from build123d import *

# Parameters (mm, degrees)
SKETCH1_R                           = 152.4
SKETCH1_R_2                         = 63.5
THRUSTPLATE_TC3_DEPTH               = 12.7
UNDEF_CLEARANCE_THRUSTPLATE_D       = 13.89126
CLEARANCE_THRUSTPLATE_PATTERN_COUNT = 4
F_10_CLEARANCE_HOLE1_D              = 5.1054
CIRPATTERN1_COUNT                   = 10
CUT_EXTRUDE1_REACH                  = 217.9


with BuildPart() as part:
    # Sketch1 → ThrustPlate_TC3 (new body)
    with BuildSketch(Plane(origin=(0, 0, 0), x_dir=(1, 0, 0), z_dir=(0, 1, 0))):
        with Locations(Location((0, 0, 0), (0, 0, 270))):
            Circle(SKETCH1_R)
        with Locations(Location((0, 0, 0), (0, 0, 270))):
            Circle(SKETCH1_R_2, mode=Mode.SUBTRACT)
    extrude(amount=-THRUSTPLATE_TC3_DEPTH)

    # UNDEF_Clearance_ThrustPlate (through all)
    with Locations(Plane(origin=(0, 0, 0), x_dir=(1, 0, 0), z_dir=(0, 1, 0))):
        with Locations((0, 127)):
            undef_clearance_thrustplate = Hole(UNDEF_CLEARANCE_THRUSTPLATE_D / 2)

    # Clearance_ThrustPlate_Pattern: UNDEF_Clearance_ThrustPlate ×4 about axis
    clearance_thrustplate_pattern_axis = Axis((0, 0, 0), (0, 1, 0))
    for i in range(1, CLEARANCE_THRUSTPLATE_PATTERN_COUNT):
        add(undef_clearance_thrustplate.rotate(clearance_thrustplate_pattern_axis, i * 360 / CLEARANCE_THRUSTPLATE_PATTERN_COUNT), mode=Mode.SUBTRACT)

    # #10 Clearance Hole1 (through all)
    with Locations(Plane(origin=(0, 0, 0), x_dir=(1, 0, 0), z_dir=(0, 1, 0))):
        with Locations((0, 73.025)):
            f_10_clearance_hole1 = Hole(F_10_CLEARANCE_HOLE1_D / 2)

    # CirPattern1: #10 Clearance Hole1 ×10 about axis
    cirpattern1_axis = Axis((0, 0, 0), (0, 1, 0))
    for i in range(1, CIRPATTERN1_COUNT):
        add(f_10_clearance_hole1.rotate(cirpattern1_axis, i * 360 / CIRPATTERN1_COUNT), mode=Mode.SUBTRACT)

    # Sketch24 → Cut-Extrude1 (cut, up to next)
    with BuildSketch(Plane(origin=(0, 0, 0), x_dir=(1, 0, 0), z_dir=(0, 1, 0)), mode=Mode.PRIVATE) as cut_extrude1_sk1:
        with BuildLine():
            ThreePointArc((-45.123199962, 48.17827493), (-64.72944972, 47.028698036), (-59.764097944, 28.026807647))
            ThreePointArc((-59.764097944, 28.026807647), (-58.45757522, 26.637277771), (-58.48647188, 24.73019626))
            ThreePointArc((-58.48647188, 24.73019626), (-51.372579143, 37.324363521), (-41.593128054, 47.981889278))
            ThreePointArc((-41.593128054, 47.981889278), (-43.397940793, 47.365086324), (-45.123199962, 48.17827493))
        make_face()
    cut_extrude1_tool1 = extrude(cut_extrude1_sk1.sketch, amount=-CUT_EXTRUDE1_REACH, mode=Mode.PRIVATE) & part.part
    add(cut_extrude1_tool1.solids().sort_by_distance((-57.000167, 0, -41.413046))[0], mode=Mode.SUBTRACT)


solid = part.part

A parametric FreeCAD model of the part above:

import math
import FreeCAD as App
import Part
import Sketcher

V = App.Vector
Q = App.Units.Quantity

doc = App.newDocument("Part")
body = doc.addObject("PartDesign::Body", "Body")

sketch1 = body.newObject("Sketcher::SketchObject", "Sketch")
sketch1.AttachmentSupport = (doc.getObject("XZ_Plane"), [""])
sketch1.MapMode = "FlatFace"
sketch1.addGeometry(Part.Circle(V(0, 0, 0), V(0, 0, 1), 152), False)
sketch1.addGeometry(Part.Circle(V(0, 0, 0), V(0, 0, 1), 64), False)
sketch1.addConstraint(Sketcher.Constraint("Coincident", 0, 3, -1, 1))
sketch1.addConstraint(Sketcher.Constraint("Coincident", 1, 3, -1, 1))
sketch1.addConstraint(Sketcher.Constraint("Diameter", 0, Q("12 in")))
sketch1.addConstraint(Sketcher.Constraint("Diameter", 1, Q("5 in")))
pad1 = body.newObject("PartDesign::Pad", "Pad")
pad1.Profile = sketch1
pad1.Length = Q("0.5 in")

sketch2 = body.newObject("Sketcher::SketchObject", "Sketch001")
sketch2.AttachmentSupport = (doc.getObject("XZ_Plane"), [""])
sketch2.MapMode = "FlatFace"
sketch2.addGeometry(Part.Circle(V(0, -127, 0), V(0, 0, 1), 7), False)
sketch2.addConstraint(Sketcher.Constraint("PointOnObject", 0, 3, -2))
sketch2.addConstraint(Sketcher.Constraint("DistanceY", 0, 3, -1, 1, Q("5 in")))
sketch2.addConstraint(Sketcher.Constraint("Diameter", 0, Q("0.5469 in")))
doc.recompute()
hole = body.newObject("PartDesign::Hole", "Hole")
hole.Profile = sketch2
hole.ThreadType = "None"
hole.Diameter = Q("0.5469 in")
hole.DepthType = "ThroughAll"
hole.Reversed = True
doc.recompute()

polarpattern = body.newObject("PartDesign::PolarPattern", "PolarPattern")
polarpattern.Originals = [hole]
polarpattern.Axis = (doc.getObject("Y_Axis"), [""])
polarpattern.Angle = 360
polarpattern.Occurrences = 4
body.Tip = polarpattern

sketch3 = body.newObject("Sketcher::SketchObject", "Sketch002")
sketch3.AttachmentSupport = (doc.getObject("XZ_Plane"), [""])
sketch3.MapMode = "FlatFace"
sketch3.addGeometry(Part.Circle(V(0, -73, 0), V(0, 0, 1), 2.6), False)
sketch3.addConstraint(Sketcher.Constraint("PointOnObject", 0, 3, -2))
sketch3.addConstraint(Sketcher.Constraint("Diameter", 0, Q("0.201 in")))
sketch3.addConstraint(Sketcher.Constraint("DistanceY", 0, 3, -1, 1, Q("2.875 in")))
doc.recompute()
hole2 = body.newObject("PartDesign::Hole", "Hole001")
hole2.Profile = sketch3
hole2.ThreadType = "None"
hole2.Diameter = Q("0.201 in")
hole2.DepthType = "ThroughAll"
hole2.Reversed = True
doc.recompute()

polarpattern2 = body.newObject("PartDesign::PolarPattern", "PolarPattern001")
polarpattern2.Originals = [hole2]
polarpattern2.Axis = (doc.getObject("Y_Axis"), [""])
polarpattern2.Angle = 360
polarpattern2.Occurrences = 10
body.Tip = polarpattern2

sketch4 = body.newObject("Sketcher::SketchObject", "Sketch003")
sketch4.AttachmentSupport = (doc.getObject("XZ_Plane"), [""])
sketch4.MapMode = "FlatFace"
sketch4.addGeometry(Part.ArcOfCircle(Part.Circle(V(-54.5, -39.6, 0), V(0, 0, 1), 12.7), math.radians(115), math.radians(317)), False)
sketch4.addGeometry(Part.ArcOfCircle(Part.Circle(V(-60.8, -25.7, 0), V(0, 0, 1), 2.5), math.radians(-65), math.radians(23)), False)
sketch4.addGeometry(Part.ArcOfCircle(Part.Circle(V(0, 0, 0), V(0, 0, 1), 63.5), math.radians(-157), math.radians(-131)), False)
sketch4.addGeometry(Part.ArcOfCircle(Part.Circle(V(-43.3, -49.9, 0), V(0, 0, 1), 2.5), math.radians(49), math.radians(137)), False)
sketch4.addConstraint(Sketcher.Constraint("Tangent", 0, 1, 1, 1))
sketch4.addConstraint(Sketcher.Constraint("Tangent", 1, 2, 2, 1))
sketch4.addConstraint(Sketcher.Constraint("Tangent", 2, 2, 3, 1))
sketch4.addConstraint(Sketcher.Constraint("Tangent", 3, 2, 0, 2))
sketch4.addConstraint(Sketcher.Constraint("Coincident", 2, 3, -1, 1))
sketch4.addConstraint(Sketcher.Constraint("Equal", 1, 3))
sketch4.addConstraint(Sketcher.Constraint("Radius", 0, Q("0.5 in")))
sketch4.addConstraint(Sketcher.Constraint("Radius", 1, Q("0.1 in")))
sketch4.addConstraint(Sketcher.Constraint("Radius", 2, Q("2.5 in")))
sketch4.addConstraint(Sketcher.Constraint("DistanceX", 3, 2, -1, 1, Q("45.1232 mm")))
sketch4.addConstraint(Sketcher.Constraint("DistanceX", 1, 3, -1, 1, Q("60.825931 mm")))
pocket1 = body.newObject("PartDesign::Pocket", "Pocket")
pocket1.Profile = sketch4
pocket1.Type = "UpToFirst"
pocket1.Reversed = True

doc.recompute()
